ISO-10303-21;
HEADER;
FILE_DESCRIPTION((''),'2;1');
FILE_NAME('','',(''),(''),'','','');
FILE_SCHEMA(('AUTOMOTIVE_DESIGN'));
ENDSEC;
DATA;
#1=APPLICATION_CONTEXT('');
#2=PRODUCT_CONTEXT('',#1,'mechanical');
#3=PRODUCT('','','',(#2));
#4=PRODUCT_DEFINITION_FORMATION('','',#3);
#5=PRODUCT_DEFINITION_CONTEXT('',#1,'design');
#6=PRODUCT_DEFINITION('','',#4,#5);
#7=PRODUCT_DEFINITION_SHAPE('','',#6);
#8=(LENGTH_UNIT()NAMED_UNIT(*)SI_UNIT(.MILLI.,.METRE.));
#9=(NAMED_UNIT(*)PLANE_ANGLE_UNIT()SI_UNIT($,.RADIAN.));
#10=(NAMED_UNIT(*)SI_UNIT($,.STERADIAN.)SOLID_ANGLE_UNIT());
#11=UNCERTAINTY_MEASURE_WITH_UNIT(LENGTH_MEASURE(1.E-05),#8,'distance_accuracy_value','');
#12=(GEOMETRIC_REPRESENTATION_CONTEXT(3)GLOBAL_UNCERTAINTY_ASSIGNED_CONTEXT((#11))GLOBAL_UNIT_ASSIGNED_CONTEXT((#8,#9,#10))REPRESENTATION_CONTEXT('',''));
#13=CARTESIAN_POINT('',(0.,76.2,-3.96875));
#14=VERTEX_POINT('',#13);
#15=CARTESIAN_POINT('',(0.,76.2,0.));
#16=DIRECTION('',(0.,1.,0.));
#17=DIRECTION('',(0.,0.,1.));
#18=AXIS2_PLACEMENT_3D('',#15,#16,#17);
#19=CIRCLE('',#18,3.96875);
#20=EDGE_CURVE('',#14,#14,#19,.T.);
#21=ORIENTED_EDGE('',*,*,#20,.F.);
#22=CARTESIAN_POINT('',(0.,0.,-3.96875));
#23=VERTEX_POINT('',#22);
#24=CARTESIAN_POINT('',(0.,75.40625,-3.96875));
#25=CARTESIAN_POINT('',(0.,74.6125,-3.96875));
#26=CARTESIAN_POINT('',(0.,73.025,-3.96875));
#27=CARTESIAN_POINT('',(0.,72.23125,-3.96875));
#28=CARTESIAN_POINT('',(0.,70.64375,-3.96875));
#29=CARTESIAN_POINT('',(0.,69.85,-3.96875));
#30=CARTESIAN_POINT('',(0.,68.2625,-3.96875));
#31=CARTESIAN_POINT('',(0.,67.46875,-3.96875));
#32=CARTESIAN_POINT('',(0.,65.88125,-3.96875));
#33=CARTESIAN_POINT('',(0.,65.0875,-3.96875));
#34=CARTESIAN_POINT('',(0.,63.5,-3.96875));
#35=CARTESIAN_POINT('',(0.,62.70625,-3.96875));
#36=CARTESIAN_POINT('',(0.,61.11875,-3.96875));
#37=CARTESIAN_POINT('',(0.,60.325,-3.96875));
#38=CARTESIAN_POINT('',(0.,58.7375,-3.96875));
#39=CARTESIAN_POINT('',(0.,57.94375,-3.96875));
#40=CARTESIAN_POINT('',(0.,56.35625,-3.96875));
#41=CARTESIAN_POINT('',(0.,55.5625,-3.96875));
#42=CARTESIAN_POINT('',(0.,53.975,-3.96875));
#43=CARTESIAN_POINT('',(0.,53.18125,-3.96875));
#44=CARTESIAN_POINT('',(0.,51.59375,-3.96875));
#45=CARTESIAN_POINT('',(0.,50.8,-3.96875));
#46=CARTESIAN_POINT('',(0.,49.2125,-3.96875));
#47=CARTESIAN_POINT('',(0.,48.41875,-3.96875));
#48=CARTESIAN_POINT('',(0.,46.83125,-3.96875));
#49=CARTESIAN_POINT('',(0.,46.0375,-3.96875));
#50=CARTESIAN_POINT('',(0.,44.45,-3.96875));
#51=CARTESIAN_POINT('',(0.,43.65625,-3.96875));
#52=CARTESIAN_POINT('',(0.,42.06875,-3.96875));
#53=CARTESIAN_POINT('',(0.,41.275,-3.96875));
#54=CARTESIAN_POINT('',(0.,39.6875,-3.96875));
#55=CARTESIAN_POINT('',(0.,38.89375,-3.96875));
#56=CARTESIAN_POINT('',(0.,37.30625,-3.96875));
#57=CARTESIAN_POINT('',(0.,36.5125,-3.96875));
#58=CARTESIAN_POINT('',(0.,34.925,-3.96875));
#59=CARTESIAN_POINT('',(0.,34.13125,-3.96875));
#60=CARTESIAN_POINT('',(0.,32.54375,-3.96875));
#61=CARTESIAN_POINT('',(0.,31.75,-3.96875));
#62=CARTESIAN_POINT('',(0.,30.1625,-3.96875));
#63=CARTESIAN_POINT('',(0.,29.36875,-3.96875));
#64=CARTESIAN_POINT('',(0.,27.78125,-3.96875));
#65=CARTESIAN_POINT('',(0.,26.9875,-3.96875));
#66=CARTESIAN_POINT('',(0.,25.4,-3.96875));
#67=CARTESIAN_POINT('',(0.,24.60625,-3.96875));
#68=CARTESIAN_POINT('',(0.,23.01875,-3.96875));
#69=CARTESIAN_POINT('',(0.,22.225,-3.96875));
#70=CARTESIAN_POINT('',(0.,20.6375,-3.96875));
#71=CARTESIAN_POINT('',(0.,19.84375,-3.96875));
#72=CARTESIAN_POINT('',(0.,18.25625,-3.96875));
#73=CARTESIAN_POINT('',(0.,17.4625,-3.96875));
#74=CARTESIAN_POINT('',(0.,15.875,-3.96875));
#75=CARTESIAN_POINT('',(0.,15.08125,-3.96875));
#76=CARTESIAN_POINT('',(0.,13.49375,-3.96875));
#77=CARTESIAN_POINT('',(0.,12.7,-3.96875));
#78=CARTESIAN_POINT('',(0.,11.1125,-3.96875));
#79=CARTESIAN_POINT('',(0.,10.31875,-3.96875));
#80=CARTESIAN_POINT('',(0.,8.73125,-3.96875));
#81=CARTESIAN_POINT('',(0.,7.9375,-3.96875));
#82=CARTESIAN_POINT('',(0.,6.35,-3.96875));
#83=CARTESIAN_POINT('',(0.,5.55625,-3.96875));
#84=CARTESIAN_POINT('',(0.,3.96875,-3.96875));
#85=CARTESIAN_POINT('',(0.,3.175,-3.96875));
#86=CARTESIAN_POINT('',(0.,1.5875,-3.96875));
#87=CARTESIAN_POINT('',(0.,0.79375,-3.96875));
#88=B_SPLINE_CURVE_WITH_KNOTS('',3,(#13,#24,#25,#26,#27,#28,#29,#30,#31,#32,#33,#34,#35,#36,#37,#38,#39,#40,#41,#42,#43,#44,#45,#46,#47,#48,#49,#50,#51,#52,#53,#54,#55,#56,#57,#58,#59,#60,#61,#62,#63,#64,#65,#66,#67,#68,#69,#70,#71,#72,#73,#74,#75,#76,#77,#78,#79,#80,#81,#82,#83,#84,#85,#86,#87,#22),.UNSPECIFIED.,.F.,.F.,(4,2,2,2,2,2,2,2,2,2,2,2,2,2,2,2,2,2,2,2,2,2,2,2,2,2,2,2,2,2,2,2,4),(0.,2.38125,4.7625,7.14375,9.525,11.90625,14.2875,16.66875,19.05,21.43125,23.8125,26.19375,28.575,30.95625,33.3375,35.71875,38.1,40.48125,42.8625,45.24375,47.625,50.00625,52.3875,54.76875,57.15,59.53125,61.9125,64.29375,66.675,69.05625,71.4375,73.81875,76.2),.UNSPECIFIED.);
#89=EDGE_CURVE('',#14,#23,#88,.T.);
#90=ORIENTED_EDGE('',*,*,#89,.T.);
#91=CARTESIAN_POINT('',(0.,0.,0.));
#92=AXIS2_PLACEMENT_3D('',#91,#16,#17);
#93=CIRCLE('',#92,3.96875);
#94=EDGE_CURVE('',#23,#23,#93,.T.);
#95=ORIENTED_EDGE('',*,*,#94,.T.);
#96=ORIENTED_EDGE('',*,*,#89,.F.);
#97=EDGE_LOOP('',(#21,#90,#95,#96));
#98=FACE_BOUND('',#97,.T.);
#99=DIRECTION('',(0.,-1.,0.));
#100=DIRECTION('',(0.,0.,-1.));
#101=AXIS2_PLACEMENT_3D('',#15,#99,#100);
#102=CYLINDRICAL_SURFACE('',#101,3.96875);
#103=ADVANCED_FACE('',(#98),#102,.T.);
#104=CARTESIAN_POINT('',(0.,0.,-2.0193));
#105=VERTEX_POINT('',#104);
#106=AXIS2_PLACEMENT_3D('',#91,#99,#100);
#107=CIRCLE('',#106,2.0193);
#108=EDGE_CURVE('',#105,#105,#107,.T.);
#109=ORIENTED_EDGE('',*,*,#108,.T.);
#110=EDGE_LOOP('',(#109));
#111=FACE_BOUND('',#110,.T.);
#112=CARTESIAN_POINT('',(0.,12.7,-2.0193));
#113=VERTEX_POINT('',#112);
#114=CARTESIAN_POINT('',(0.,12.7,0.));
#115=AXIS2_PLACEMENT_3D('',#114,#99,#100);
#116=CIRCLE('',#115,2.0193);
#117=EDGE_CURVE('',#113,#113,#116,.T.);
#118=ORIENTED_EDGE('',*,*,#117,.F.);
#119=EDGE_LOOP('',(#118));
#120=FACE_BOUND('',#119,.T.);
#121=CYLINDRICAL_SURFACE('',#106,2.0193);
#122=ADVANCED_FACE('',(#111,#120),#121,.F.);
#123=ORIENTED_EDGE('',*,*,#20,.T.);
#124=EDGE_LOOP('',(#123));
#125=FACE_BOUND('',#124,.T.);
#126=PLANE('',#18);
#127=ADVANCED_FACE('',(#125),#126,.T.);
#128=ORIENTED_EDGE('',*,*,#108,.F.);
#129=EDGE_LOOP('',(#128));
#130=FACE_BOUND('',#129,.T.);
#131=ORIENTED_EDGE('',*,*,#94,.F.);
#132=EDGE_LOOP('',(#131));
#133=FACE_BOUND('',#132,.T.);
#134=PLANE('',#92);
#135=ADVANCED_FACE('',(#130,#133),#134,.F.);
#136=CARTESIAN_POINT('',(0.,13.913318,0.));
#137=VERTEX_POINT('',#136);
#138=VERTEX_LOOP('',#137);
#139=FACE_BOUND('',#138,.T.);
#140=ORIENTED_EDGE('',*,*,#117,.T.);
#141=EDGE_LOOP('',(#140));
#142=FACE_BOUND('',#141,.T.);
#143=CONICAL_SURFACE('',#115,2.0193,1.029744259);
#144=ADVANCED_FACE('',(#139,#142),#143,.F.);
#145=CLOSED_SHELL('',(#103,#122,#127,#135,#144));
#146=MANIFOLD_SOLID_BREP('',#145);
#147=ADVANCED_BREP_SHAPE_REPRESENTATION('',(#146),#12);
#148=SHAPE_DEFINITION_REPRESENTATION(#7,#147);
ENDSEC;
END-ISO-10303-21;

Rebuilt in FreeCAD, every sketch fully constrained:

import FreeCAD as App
import Part
import Sketcher
from FreeCAD import Vector
Q = App.Units.Quantity

doc = App.newDocument("Part")
body = doc.addObject("PartDesign::Body", "Body")

sketch1 = body.newObject("Sketcher::SketchObject", "Sketch")
sketch1.AttachmentSupport = (doc.getObject("XZ_Plane"), [""])
sketch1.MapMode = "FlatFace"
sketch1.addGeometry(Part.Circle(Vector(0, 0, 0), Vector(0, 0, 1), 4), False)
sketch1.addConstraint(Sketcher.Constraint("Coincident", 0, 3, -1, 1))
sketch1.addConstraint(Sketcher.Constraint("Diameter", 0, Q("0.3125 in")))
pad1 = body.newObject("PartDesign::Pad", "Pad")
pad1.Profile = sketch1
pad1.Length = Q("3 in")
pad1.Reversed = True

sketch2 = body.newObject("Sketcher::SketchObject", "Sketch001")
sketch2.AttachmentSupport = (doc.getObject("XZ_Plane"), [""])
sketch2.MapMode = "FlatFace"
sketch2.addGeometry(Part.Circle(Vector(0, 0, 0), Vector(0, 0, 1), 2), False)
sketch2.addConstraint(Sketcher.Constraint("Coincident", 0, 3, -1, 1))
sketch2.addConstraint(Sketcher.Constraint("Diameter", 0, Q("0.159 in")))
doc.recompute()
hole = body.newObject("PartDesign::Hole", "Hole")
hole.Profile = sketch2
hole.ThreadType = "None"
hole.Diameter = Q("0.159 in")
hole.DepthType = "Dimension"
hole.Depth = Q("0.5 in")
hole.DrillPoint = "Angled"
hole.DrillPointAngle = 118

doc.recompute()
